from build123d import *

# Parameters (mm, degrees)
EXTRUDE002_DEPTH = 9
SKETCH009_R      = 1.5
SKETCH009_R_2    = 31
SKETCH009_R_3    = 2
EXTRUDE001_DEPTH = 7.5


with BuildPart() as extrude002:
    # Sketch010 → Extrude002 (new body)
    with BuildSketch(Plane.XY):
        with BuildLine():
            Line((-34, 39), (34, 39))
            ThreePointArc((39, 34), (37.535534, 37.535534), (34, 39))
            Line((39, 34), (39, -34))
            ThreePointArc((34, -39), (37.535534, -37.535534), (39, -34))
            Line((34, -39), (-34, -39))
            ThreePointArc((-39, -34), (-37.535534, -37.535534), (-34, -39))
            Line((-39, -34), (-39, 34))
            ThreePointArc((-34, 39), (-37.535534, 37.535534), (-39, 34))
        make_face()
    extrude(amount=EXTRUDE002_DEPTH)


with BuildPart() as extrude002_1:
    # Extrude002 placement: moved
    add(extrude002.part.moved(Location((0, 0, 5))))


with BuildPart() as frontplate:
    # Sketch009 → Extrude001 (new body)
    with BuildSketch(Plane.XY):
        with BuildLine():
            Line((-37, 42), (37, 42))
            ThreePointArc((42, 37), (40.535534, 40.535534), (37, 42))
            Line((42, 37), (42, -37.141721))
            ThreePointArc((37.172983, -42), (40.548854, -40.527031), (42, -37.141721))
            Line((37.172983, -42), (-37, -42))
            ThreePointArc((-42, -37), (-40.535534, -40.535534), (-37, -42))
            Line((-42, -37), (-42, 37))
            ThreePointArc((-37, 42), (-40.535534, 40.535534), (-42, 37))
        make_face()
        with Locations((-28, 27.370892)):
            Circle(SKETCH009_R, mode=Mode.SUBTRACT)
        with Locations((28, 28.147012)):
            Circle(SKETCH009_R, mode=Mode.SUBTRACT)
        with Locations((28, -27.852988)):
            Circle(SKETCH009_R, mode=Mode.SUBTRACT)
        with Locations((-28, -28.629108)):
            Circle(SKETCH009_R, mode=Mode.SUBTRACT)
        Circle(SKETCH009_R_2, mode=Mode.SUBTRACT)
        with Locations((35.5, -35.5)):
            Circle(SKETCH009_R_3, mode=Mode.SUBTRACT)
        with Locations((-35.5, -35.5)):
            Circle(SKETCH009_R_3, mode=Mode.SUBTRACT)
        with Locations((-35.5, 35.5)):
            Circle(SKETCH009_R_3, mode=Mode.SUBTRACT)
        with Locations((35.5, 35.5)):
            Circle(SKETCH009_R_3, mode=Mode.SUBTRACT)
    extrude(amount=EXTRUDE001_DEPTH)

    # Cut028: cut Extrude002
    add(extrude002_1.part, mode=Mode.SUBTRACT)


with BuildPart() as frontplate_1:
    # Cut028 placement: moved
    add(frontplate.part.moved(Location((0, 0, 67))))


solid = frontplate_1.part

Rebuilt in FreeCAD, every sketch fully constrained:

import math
import FreeCAD as App
import Part
import Sketcher
from FreeCAD import Vector
Q = App.Units.Quantity

doc = App.newDocument("Part")
body = doc.addObject("PartDesign::Body", "Body")

# Sketch on XY plane
sketch1 = body.newObject("Sketcher::SketchObject", "Sketch")
sketch1.AttachmentSupport = (doc.getObject("XY_Plane"), [""])
sketch1.MapMode = "FlatFace"
sketch1.addGeometry([
    Part.LineSegment(Vector(34, 39, 0), Vector(-34, 39, 0)),  # 0
    Part.ArcOfCircle(Part.Circle(Vector(-34, 34, 0), Vector(0, 0, 1), 5), math.radians(90), math.radians(180)),  # 1
    Part.LineSegment(Vector(-39, 34, 0), Vector(-39, -34, 0)),  # 2
    Part.ArcOfCircle(Part.Circle(Vector(-34, -34, 0), Vector(0, 0, 1), 5), math.radians(180), math.radians(270)),  # 3
    Part.LineSegment(Vector(-34, -39, 0), Vector(34, -39, 0)),  # 4
    Part.ArcOfCircle(Part.Circle(Vector(34, -34, 0), Vector(0, 0, 1), 5), math.radians(-90), math.radians(0)),  # 5
    Part.LineSegment(Vector(39, -34, 0), Vector(39, 34, 0)),  # 6
    Part.ArcOfCircle(Part.Circle(Vector(34, 34, 0), Vector(0, 0, 1), 5), math.radians(0), math.radians(90)),  # 7
], False)
sketch1.addConstraint([
    Sketcher.Constraint("Tangent", 0, 2, 1, 1),
    Sketcher.Constraint("Tangent", 1, 2, 2, 1),
    Sketcher.Constraint("Tangent", 2, 2, 3, 1),
    Sketcher.Constraint("Tangent", 3, 2, 4, 1),
    Sketcher.Constraint("Tangent", 4, 2, 5, 1),
    Sketcher.Constraint("Tangent", 5, 2, 6, 1),
    Sketcher.Constraint("Tangent", 6, 2, 7, 1),
    Sketcher.Constraint("Tangent", 7, 2, 0, 1),
    Sketcher.Constraint("Horizontal", 0),
    Sketcher.Constraint("Vertical", 2),
    Sketcher.Constraint("Horizontal", 4),
    Sketcher.Constraint("Vertical", 6),
    Sketcher.Constraint("Equal", 1, 3),
    Sketcher.Constraint("Equal", 3, 5),
    Sketcher.Constraint("Equal", 5, 7),
    Sketcher.Constraint("Symmetric", 1, 3, 5, 3, -1, 1),
    Sketcher.Constraint("Equal", 4, 2),
    Sketcher.Constraint("Radius", 1, Q("5 mm")),
    Sketcher.Constraint("DistanceX", 0, 2, 0, 1, Q("68 mm")),
])
pad1 = body.newObject("PartDesign::Pad", "Pad")
pad1.Profile = sketch1
pad1.Length = 9
body2 = doc.addObject("PartDesign::Body", "Body001")
doc.recompute()

body.Placement = App.Placement(Vector(0, 0, 5), App.Rotation(Vector(0, 0, 1), 0))
boolean = body2.newObject("PartDesign::Boolean", "Boolean")
boolean.Type = "Fuse"
boolean.addObjects([body])
body3 = doc.addObject("PartDesign::Body", "Body002")

# Sketch on XY plane
sketch2 = body3.newObject("Sketcher::SketchObject", "Sketch001")
sketch2.AttachmentSupport = (doc.getObject("XY_Plane002"), [""])
sketch2.MapMode = "FlatFace"
sketch2.addGeometry([
    Part.LineSegment(Vector(37, 42, 0), Vector(-37, 42, 0)),  # 0
    Part.ArcOfCircle(Part.Circle(Vector(-37, 37, 0), Vector(0, 0, 1), 5), math.radians(90), math.radians(180)),  # 1
    Part.LineSegment(Vector(-42, 37, 0), Vector(-42, -37, 0)),  # 2
    Part.ArcOfCircle(Part.Circle(Vector(-37, -37, 0), Vector(0, 0, 1), 5), math.radians(180), math.radians(270)),  # 3
    Part.LineSegment(Vector(-37, -42, 0), Vector(37.2, -42, 0)),  # 4
    Part.ArcOfCircle(Part.Circle(Vector(37, -37, 0), Vector(0, 0, 1), 5), math.radians(-88), math.radians(-2)),  # 5
    Part.LineSegment(Vector(42, -37.1, 0), Vector(42, 37, 0)),  # 6
    Part.ArcOfCircle(Part.Circle(Vector(37, 37, 0), Vector(0, 0, 1), 5), math.radians(0), math.radians(90)),  # 7
    Part.Circle(Vector(35.5, -35.5, 0), Vector(0, 0, 1), 2),  # 8
    Part.Circle(Vector(28, -27.9, 0), Vector(0, 0, 1), 1.5),  # 9
    Part.Circle(Vector(-28, -28.6, 0), Vector(0, 0, 1), 1.5),  # 10
    Part.Circle(Vector(-35.5, -35.5, 0), Vector(0, 0, 1), 2),  # 11
    Part.Circle(Vector(35.5, 35.5, 0), Vector(0, 0, 1), 2),  # 12
    Part.Circle(Vector(28, 28.1, 0), Vector(0, 0, 1), 1.5),  # 13
    Part.Circle(Vector(0, 0, 0), Vector(0, 0, 1), 31),  # 14
    Part.Circle(Vector(-28, 27.4, 0), Vector(0, 0, 1), 1.5),  # 15
    Part.Circle(Vector(-35.5, 35.5, 0), Vector(0, 0, 1), 2),  # 16
], False)
sketch2.addConstraint([
    Sketcher.Constraint("Tangent", 0, 2, 1, 1),
    Sketcher.Constraint("Tangent", 1, 2, 2, 1),
    Sketcher.Constraint("Tangent", 2, 2, 3, 1),
    Sketcher.Constraint("Tangent", 3, 2, 4, 1),
    Sketcher.Constraint("Coincident", 4, 2, 5, 1),
    Sketcher.Constraint("Coincident", 5, 2, 6, 1),
    Sketcher.Constraint("Tangent", 6, 2, 7, 1),
    Sketcher.Constraint("Tangent", 7, 2, 0, 1),
    Sketcher.Constraint("Horizontal", 0),
    Sketcher.Constraint("Vertical", 2),
    Sketcher.Constraint("Horizontal", 4),
    Sketcher.Constraint("Vertical", 6),
    Sketcher.Constraint("Coincident", 14, 3, -1, 1),
    Sketcher.Constraint("Equal", 1, 3),
    Sketcher.Constraint("Equal", 3, 5),
    Sketcher.Constraint("Equal", 5, 7),
    Sketcher.Constraint("Equal", 9, 10),
    Sketcher.Constraint("Equal", 8, 11),
    Sketcher.Constraint("Equal", 11, 12),
    Sketcher.Constraint("Equal", 10, 13),
    Sketcher.Constraint("Equal", 13, 15),
    Sketcher.Constraint("Equal", 12, 16),
    Sketcher.Constraint("Symmetric", 3, 3, 7, 3, -1, 1),
    Sketcher.Constraint("Symmetric", 11, 3, 12, 3, -1, 1),
    Sketcher.Constraint("Symmetric", 8, 3, 16, 3, -1, 1),
    Sketcher.Constraint("Symmetric", 8, 3, 11, 3, -2),
    Sketcher.Constraint("Vertical", 9, 3, 13, 3),
    Sketcher.Constraint("Vertical", 10, 3, 15, 3),
    Sketcher.Constraint("Equal", 0, 2),
    Sketcher.Constraint("Diameter", 8, Q("4 mm")),
    Sketcher.Constraint("Diameter", 9, Q("3 mm")),
    Sketcher.Constraint("Diameter", 14, Q("62 mm")),
    Sketcher.Constraint("Radius", 1, Q("5 mm")),
    Sketcher.Constraint("DistanceX", 0, 2, 0, 1, Q("74 mm")),
    Sketcher.Constraint("DistanceX", -1, 1, 9, 3, Q("28 mm")),
    Sketcher.Constraint("DistanceX", 10, 3, -1, 1, Q("28 mm")),
    Sketcher.Constraint("DistanceX", 11, 3, 8, 3, Q("71 mm")),
    Sketcher.Constraint("DistanceY", 8, 3, 12, 3, Q("71 mm")),
    Sketcher.Constraint("DistanceY", 9, 3, 13, 3, Q("56 mm")),
    Sketcher.Constraint("DistanceY", 10, 3, 15, 3, Q("56 mm")),
    Sketcher.Constraint("DistanceY", 6, 1, 6, 2, Q("74.141721 mm")),
    Sketcher.Constraint("DistanceX", 4, 1, 4, 2, Q("74.172983 mm")),
    Sketcher.Constraint("DistanceY", 9, 3, -1, 1, Q("27.852988 mm")),
    Sketcher.Constraint("DistanceY", 10, 3, 9, 3, Q("0.77612 mm")),
])
pad2 = body3.newObject("PartDesign::Pad", "Pad001")
pad2.Profile = sketch2
pad2.Length = 7.5
doc.recompute()

boolean2 = body3.newObject("PartDesign::Boolean", "Boolean001")
boolean2.Type = "Cut"
boolean2.addObjects([body2])
body4 = doc.addObject("PartDesign::Body", "Body003")
doc.recompute()

body3.Placement = App.Placement(Vector(0, 0, 67), App.Rotation(Vector(0, 0, 1), 0))
boolean3 = body4.newObject("PartDesign::Boolean", "Boolean002")
boolean3.Type = "Fuse"
boolean3.addObjects([body3])

doc.recompute()
